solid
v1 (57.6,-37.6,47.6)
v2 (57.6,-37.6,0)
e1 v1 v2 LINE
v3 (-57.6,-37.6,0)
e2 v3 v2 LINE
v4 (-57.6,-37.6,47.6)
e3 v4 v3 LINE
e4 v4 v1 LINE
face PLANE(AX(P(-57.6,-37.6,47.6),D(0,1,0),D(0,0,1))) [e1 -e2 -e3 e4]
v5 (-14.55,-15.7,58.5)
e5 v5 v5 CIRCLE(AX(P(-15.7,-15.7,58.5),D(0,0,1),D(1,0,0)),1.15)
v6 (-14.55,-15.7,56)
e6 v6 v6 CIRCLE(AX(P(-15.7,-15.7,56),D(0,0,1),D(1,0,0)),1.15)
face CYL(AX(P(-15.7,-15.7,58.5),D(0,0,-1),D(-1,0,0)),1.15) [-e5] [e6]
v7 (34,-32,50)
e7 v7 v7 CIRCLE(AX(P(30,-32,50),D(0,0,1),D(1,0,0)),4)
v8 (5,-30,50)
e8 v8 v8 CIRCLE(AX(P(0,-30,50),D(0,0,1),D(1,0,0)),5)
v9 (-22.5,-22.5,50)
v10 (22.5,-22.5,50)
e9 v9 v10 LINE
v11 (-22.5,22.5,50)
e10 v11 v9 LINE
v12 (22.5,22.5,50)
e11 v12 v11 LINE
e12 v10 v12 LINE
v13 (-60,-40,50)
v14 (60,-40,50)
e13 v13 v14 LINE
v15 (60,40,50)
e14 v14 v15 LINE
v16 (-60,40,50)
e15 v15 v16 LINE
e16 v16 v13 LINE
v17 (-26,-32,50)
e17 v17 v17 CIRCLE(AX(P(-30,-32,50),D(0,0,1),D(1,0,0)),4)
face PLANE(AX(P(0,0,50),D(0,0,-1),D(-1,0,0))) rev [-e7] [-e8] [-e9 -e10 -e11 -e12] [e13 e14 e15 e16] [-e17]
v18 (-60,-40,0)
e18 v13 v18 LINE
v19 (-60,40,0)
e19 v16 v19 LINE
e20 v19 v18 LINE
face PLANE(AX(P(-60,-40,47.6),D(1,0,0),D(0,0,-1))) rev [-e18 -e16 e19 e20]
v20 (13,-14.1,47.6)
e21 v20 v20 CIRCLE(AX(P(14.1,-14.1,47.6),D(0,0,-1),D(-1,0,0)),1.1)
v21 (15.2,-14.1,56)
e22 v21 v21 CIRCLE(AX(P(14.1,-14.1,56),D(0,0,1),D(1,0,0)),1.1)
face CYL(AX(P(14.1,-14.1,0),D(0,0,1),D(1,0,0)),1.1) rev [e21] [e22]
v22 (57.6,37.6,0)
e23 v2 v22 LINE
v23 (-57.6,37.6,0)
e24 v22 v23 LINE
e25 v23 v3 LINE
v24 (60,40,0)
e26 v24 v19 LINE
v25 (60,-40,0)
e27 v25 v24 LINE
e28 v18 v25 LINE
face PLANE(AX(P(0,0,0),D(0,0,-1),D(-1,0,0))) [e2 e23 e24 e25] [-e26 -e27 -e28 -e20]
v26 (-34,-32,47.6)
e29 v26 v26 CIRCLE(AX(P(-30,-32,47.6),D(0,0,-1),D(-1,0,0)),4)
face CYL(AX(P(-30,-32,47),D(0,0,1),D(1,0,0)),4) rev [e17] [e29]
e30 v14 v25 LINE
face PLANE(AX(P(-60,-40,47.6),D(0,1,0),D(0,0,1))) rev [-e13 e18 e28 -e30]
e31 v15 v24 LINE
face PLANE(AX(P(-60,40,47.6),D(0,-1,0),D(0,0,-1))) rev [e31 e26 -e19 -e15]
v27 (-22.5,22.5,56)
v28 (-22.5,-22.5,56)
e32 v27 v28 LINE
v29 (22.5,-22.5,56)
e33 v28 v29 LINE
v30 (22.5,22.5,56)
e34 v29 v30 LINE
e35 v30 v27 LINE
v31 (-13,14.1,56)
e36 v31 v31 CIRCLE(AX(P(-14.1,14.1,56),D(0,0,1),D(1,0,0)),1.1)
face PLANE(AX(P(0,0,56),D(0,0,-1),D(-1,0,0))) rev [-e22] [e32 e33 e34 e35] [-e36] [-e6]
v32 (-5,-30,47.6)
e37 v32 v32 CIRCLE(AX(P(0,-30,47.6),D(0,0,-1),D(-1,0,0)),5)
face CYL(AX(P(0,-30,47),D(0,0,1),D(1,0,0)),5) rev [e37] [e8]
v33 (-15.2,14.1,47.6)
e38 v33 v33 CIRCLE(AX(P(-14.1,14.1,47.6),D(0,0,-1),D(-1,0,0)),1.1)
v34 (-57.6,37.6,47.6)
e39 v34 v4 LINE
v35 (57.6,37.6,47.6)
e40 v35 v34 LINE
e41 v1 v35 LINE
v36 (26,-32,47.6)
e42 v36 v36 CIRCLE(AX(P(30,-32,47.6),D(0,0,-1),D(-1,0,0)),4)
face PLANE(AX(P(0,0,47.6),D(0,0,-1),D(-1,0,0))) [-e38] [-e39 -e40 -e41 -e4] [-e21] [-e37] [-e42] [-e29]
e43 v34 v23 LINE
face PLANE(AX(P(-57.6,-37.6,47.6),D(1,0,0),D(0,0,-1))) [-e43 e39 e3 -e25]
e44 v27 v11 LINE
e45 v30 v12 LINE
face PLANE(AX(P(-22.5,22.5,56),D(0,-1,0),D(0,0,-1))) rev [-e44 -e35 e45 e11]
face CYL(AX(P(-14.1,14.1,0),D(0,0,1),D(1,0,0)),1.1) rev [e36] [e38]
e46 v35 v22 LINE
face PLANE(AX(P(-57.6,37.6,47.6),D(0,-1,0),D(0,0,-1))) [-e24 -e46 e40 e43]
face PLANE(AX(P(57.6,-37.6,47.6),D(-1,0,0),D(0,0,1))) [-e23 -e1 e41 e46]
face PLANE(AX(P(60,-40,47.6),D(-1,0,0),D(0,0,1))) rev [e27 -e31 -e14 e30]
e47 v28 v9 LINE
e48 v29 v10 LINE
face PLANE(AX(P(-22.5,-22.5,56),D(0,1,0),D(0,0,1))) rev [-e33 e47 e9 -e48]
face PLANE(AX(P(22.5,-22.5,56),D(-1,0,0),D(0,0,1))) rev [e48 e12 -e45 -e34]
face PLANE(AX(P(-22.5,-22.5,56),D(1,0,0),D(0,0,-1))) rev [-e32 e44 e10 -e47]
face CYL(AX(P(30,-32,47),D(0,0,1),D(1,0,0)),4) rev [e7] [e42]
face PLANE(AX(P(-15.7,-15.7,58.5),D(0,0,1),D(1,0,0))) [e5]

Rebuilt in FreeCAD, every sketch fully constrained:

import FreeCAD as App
import Part
import Sketcher

doc = App.newDocument("Part")
body = doc.addObject("PartDesign::Body", "Body")

# Sketch on XY plane
sketch1 = body.newObject("Sketcher::SketchObject", "Sketch")
sketch1.AttachmentSupport = (doc.getObject("XY_Plane"), [""])
sketch1.MapMode = "FlatFace"
sketch1.addGeometry([
    Part.LineSegment(App.Vector(-60, 40, 0), App.Vector(-60, -40, 0)),  # 0
    Part.LineSegment(App.Vector(-60, -40, 0), App.Vector(60, -40, 0)),  # 1
    Part.LineSegment(App.Vector(60, -40, 0), App.Vector(60, 40, 0)),  # 2
    Part.LineSegment(App.Vector(60, 40, 0), App.Vector(-60, 40, 0)),  # 3
    Part.LineSegment(App.Vector(58, -38, 0), App.Vector(-58, -38, 0)),  # 4
    Part.LineSegment(App.Vector(-58, -38, 0), App.Vector(-58, 38, 0)),  # 5
    Part.LineSegment(App.Vector(-58, 38, 0), App.Vector(58, 38, 0)),  # 6
    Part.LineSegment(App.Vector(58, 38, 0), App.Vector(58, -38, 0)),  # 7
], False)
sketch1.addConstraint([
    Sketcher.Constraint("Coincident", 0, 2, 1, 1),
    Sketcher.Constraint("Coincident", 1, 2, 2, 1),
    Sketcher.Constraint("Coincident", 2, 2, 3, 1),
    Sketcher.Constraint("Coincident", 3, 2, 0, 1),
    Sketcher.Constraint("Coincident", 4, 2, 5, 1),
    Sketcher.Constraint("Coincident", 5, 2, 6, 1),
    Sketcher.Constraint("Coincident", 6, 2, 7, 1),
    Sketcher.Constraint("Coincident", 7, 2, 4, 1),
    Sketcher.Constraint("Vertical", 0),
    Sketcher.Constraint("Horizontal", 1),
    Sketcher.Constraint("Vertical", 2),
    Sketcher.Constraint("Horizontal", 3),
    Sketcher.Constraint("Horizontal", 4),
    Sketcher.Constraint("Vertical", 5),
    Sketcher.Constraint("Horizontal", 6),
    Sketcher.Constraint("Vertical", 7),
    Sketcher.Constraint("Symmetric", 0, 2, 2, 2, -1, 1),
    Sketcher.Constraint("Symmetric", 4, 2, 6, 2, -1, 1),
    Sketcher.Constraint("DistanceX", 1, 1, 1, 2, 120.0),
    Sketcher.Constraint("DistanceY", 0, 2, 0, 1, 80.0),
    Sketcher.Constraint("DistanceX", 4, 2, 4, 1, 115.2),
    Sketcher.Constraint("DistanceY", 5, 1, 5, 2, 75.2),
])
pad1 = body.newObject("PartDesign::Pad", "Pad")
pad1.Profile = sketch1
pad1.Length = 47.6

# Sketch on XY plane
sketch2 = body.newObject("Sketcher::SketchObject", "Sketch001")
sketch2.AttachmentSupport = (doc.getObject("XY_Plane"), [""])
sketch2.MapMode = "FlatFace"
sketch2.AttachmentOffset = App.Placement(App.Vector(0, 0, 47.6), App.Rotation())
sketch2.addGeometry([
    Part.LineSegment(App.Vector(-60, 40, 0), App.Vector(-60, -40, 0)),
    Part.LineSegment(App.Vector(-60, -40, 0), App.Vector(60, -40, 0)),
    Part.LineSegment(App.Vector(60, -40, 0), App.Vector(60, 40, 0)),
    Part.LineSegment(App.Vector(60, 40, 0), App.Vector(-60, 40, 0)),
], False)
sketch2.addConstraint([
    Sketcher.Constraint("Coincident", 0, 2, 1, 1),
    Sketcher.Constraint("Coincident", 1, 2, 2, 1),
    Sketcher.Constraint("Coincident", 2, 2, 3, 1),
    Sketcher.Constraint("Coincident", 3, 2, 0, 1),
    Sketcher.Constraint("Vertical", 0),
    Sketcher.Constraint("Horizontal", 1),
    Sketcher.Constraint("Vertical", 2),
    Sketcher.Constraint("Horizontal", 3),
    Sketcher.Constraint("Symmetric", 0, 2, 2, 2, -1, 1),
    Sketcher.Constraint("DistanceX", 1, 1, 1, 2, 120.0),
    Sketcher.Constraint("DistanceY", 0, 2, 0, 1, 80.0),
])
pad2 = body.newObject("PartDesign::Pad", "Pad001")
pad2.Profile = sketch2
pad2.Length = 2.4

# Sketch on XY plane
sketch3 = body.newObject("Sketcher::SketchObject", "Sketch002")
sketch3.AttachmentSupport = (doc.getObject("XY_Plane"), [""])
sketch3.MapMode = "FlatFace"
sketch3.AttachmentOffset = App.Placement(App.Vector(0, 0, 50), App.Rotation())
sketch3.addGeometry([
    Part.LineSegment(App.Vector(-22, 22, 0), App.Vector(-22, -22, 0)),
    Part.LineSegment(App.Vector(-22, -22, 0), App.Vector(22, -22, 0)),
    Part.LineSegment(App.Vector(22, -22, 0), App.Vector(22, 22, 0)),
    Part.LineSegment(App.Vector(22, 22, 0), App.Vector(-22, 22, 0)),
], False)
sketch3.addConstraint([
    Sketcher.Constraint("Coincident", 0, 2, 1, 1),
    Sketcher.Constraint("Coincident", 1, 2, 2, 1),
    Sketcher.Constraint("Coincident", 2, 2, 3, 1),
    Sketcher.Constraint("Coincident", 3, 2, 0, 1),
    Sketcher.Constraint("Vertical", 0),
    Sketcher.Constraint("Horizontal", 1),
    Sketcher.Constraint("Vertical", 2),
    Sketcher.Constraint("Horizontal", 3),
    Sketcher.Constraint("Symmetric", 0, 2, 2, 2, -1, 1),
    Sketcher.Constraint("Equal", 3, 0),
    Sketcher.Constraint("DistanceX", 1, 1, 1, 2, 45.0),
])
pad3 = body.newObject("PartDesign::Pad", "Pad002")
pad3.Profile = sketch3
pad3.Length = 6

# Sketch on XY plane
sketch4 = body.newObject("Sketcher::SketchObject", "Sketch003")
sketch4.AttachmentSupport = (doc.getObject("XY_Plane"), [""])
sketch4.MapMode = "FlatFace"
sketch4.AttachmentOffset = App.Placement(App.Vector(0, 0, 56), App.Rotation())
sketch4.addGeometry([
    Part.Circle(App.Vector(-14.1, 14.1, 0), App.Vector(0, 0, 1), 1.1),
    Part.Circle(App.Vector(14.1, -14.1, 0), App.Vector(0, 0, 1), 1.1),
], False)
sketch4.addConstraint([
    Sketcher.Constraint("Equal", 0, 1),
    Sketcher.Constraint("Symmetric", 0, 3, 1, 3, -1, 1),
    Sketcher.Constraint("Diameter", 0, 2.2),
    Sketcher.Constraint("DistanceX", 0, 3, -1, 1, 14.1),
    Sketcher.Constraint("DistanceY", -1, 1, 0, 3, 14.1),
])
pocket1 = body.newObject("PartDesign::Pocket", "Pocket")
pocket1.Profile = sketch4
pocket1.Type = "ThroughAll"

# Sketch on XY plane
sketch5 = body.newObject("Sketcher::SketchObject", "Sketch004")
sketch5.AttachmentSupport = (doc.getObject("XY_Plane"), [""])
sketch5.MapMode = "FlatFace"
sketch5.AttachmentOffset = App.Placement(App.Vector(0, 0, 56), App.Rotation())
sketch5.addGeometry(Part.Circle(App.Vector(-15.7, -15.7, 0), App.Vector(0, 0, 1), 1.1), False)
sketch5.addConstraint([
    Sketcher.Constraint("Diameter", 0, 2.3),
    Sketcher.Constraint("DistanceX", 0, 3, -1, 1, 15.7),
    Sketcher.Constraint("DistanceY", 0, 3, -1, 1, 15.7),
])
pad4 = body.newObject("PartDesign::Pad", "Pad003")
pad4.Profile = sketch5
pad4.Length = 2.5

# Sketch on XY plane
sketch6 = body.newObject("Sketcher::SketchObject", "Sketch005")
sketch6.AttachmentSupport = (doc.getObject("XY_Plane"), [""])
sketch6.MapMode = "FlatFace"
sketch6.AttachmentOffset = App.Placement(App.Vector(0, 0, 50), App.Rotation())
sketch6.addGeometry([
    Part.Circle(App.Vector(-30, -32, 0), App.Vector(0, 0, 1), 4),
    Part.Circle(App.Vector(30, -32, 0), App.Vector(0, 0, 1), 4),
    Part.Circle(App.Vector(0, -30, 0), App.Vector(0, 0, 1), 5),
], False)
sketch6.addConstraint([
    Sketcher.Constraint("Equal", 0, 1),
    Sketcher.Constraint("Symmetric", 0, 3, 1, 3, -2),
    Sketcher.Constraint("PointOnObject", 2, 3, -2),
    Sketcher.Constraint("Diameter", 0, 8.0),
    Sketcher.Constraint("Diameter", 2, 10.0),
    Sketcher.Constraint("DistanceX", 0, 3, -1, 1, 30.0),
    Sketcher.Constraint("DistanceY", 0, 3, -1, 1, 32.0),
    Sketcher.Constraint("DistanceY", 2, 3, -1, 1, 30.0),
])
pocket2 = body.newObject("PartDesign::Pocket", "Pocket001")
pocket2.Profile = sketch6
pocket2.Length = 3

doc.recompute()
